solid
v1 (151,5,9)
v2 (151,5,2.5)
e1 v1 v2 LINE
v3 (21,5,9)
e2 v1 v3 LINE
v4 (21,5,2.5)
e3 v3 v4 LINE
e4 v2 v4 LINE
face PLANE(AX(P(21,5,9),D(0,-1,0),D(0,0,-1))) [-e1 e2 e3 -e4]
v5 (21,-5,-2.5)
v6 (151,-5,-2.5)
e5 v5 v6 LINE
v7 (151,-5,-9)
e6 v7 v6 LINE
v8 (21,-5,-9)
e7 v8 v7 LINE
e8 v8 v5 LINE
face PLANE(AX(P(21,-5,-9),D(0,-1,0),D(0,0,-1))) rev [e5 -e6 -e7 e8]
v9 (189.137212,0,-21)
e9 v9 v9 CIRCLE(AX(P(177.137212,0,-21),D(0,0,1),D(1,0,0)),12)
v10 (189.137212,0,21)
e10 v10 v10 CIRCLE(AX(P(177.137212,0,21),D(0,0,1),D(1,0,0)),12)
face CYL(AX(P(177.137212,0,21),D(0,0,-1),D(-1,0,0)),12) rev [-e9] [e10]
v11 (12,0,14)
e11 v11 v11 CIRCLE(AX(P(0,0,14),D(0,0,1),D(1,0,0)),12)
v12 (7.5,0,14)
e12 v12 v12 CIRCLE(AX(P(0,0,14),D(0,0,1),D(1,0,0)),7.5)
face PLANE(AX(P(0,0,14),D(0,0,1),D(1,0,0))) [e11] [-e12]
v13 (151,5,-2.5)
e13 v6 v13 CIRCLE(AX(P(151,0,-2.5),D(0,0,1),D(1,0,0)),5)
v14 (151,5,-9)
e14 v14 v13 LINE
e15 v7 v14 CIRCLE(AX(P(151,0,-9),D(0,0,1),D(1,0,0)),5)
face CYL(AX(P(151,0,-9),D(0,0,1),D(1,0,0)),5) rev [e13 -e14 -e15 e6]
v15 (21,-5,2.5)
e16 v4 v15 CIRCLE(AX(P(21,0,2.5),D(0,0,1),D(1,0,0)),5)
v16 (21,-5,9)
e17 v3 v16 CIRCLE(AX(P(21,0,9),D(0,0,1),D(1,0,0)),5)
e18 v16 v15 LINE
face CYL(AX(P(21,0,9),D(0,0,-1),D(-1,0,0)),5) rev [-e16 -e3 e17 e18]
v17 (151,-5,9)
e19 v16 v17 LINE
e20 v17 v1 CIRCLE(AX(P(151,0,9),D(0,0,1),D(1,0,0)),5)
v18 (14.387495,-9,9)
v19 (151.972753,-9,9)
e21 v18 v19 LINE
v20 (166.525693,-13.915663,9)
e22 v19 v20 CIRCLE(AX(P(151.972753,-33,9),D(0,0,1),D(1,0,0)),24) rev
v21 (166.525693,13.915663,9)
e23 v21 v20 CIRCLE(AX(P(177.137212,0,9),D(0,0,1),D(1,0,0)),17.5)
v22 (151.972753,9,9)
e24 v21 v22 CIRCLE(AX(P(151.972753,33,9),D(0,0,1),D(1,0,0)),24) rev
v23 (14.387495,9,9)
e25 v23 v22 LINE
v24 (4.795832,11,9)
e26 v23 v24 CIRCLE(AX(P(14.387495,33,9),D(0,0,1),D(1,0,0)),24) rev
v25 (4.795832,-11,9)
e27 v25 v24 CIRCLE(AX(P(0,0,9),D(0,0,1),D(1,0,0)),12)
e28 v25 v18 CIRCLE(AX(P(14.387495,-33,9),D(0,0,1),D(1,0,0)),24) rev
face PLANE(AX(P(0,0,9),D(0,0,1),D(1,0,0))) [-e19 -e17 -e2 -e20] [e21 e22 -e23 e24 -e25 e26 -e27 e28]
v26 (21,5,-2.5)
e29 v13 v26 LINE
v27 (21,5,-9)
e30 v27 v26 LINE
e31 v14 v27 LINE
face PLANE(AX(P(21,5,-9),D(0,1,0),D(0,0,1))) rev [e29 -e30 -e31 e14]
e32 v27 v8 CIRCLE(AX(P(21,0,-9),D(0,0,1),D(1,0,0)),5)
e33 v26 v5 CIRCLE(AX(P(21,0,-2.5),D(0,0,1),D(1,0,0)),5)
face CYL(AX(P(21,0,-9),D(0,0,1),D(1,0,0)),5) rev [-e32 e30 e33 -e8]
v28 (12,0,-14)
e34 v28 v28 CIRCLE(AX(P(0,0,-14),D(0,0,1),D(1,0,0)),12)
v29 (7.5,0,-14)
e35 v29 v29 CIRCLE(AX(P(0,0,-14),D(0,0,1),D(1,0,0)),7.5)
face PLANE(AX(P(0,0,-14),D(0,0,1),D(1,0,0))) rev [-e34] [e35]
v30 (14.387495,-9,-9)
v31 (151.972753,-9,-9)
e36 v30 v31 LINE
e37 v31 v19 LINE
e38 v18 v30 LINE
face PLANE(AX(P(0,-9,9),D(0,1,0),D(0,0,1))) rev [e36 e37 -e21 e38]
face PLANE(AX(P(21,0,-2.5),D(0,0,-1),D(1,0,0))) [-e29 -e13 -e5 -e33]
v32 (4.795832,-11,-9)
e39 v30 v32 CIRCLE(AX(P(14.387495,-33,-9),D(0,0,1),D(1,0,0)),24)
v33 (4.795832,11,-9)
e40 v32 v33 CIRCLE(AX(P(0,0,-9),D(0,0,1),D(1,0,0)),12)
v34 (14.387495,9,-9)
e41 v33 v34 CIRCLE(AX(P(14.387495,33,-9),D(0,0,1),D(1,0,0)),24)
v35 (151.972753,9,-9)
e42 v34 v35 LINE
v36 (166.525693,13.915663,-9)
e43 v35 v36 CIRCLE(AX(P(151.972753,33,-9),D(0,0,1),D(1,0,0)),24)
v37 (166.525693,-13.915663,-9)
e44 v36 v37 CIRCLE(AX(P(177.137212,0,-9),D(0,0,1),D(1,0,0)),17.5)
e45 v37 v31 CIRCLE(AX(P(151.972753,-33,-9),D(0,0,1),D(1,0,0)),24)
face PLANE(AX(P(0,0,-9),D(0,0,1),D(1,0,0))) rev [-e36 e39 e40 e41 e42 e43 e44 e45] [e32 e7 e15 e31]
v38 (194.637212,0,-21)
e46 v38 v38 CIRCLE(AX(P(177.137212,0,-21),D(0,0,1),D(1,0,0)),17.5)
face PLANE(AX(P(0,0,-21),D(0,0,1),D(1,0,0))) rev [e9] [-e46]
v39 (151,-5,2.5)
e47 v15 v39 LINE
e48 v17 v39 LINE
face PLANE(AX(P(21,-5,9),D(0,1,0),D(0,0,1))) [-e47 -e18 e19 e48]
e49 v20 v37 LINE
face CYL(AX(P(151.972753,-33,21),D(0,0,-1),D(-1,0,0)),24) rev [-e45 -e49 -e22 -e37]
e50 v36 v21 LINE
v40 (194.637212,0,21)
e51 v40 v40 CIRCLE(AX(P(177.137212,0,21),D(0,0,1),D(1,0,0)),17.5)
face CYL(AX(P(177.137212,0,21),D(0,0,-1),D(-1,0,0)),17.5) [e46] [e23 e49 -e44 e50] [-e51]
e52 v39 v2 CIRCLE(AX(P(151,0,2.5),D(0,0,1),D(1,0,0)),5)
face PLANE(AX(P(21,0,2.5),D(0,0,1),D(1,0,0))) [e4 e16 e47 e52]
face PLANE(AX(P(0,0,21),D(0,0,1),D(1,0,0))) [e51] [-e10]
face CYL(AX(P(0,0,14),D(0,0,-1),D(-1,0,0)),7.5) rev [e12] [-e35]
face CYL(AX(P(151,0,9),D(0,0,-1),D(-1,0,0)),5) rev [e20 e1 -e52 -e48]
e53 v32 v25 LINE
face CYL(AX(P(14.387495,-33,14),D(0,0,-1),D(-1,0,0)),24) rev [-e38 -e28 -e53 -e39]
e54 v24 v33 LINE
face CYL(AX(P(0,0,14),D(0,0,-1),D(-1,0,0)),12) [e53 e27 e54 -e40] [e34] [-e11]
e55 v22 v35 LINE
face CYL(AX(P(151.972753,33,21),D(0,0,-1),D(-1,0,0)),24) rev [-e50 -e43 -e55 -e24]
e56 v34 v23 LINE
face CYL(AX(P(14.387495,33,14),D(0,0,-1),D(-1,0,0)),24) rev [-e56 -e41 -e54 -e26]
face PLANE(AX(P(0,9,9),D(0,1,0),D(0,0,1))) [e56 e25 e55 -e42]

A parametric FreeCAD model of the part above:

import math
import FreeCAD as App
import Part
import Sketcher
Q = App.Units.Quantity


def edges_at(feature, points):
    """Names of the edges that pass closest to the given points."""
    edges = feature.Shape.Edges
    near = lambda p: min(range(len(edges)), key=lambda i: edges[i].distToShape(Part.Vertex(*p))[0])
    return sorted({f"Edge{near(p) + 1}" for p in points})

doc = App.newDocument("Part")
body = doc.addObject("PartDesign::Body", "Body")

# Sketch on XY plane
sketch1 = body.newObject("Sketcher::SketchObject", "Sketch")
sketch1.AttachmentSupport = (doc.getObject("XY_Plane"), [""])
sketch1.MapMode = "FlatFace"
sketch1.addGeometry([
    Part.Circle(App.Vector(0, 0, 0), App.Vector(0, 0, 1), 12),
    Part.Circle(App.Vector(0, 0, 0), App.Vector(0, 0, 1), 8),
], False)
sketch1.addConstraint([
    Sketcher.Constraint("Coincident", 0, 3, -1, 1),
    Sketcher.Constraint("Coincident", 1, 3, -1, 1),
    Sketcher.Constraint("Diameter", 0, Q("24 mm")),
    Sketcher.Constraint("Diameter", 1, Q("15 mm")),
])
pad1 = body.newObject("PartDesign::Pad", "Pad")
pad1.Profile = sketch1
pad1.Length = 28
pad1.Midplane = True
body2 = doc.addObject("PartDesign::Body", "Body001")

# Sketch on XY plane
sketch2 = body2.newObject("Sketcher::SketchObject", "Sketch001")
sketch2.AttachmentSupport = (doc.getObject("XY_Plane001"), [""])
sketch2.MapMode = "FlatFace"
sketch2.addGeometry([
    Part.Circle(App.Vector(177, 0, 0), App.Vector(0, 0, 1), 18),
    Part.Circle(App.Vector(177, 0, 0), App.Vector(0, 0, 1), 12),
], False)
sketch2.addConstraint([
    Sketcher.Constraint("Coincident", 1, 3, 0, 3),
    Sketcher.Constraint("PointOnObject", 0, 3, -1),
    Sketcher.Constraint("Diameter", 0, Q("35 mm")),
    Sketcher.Constraint("Diameter", 1, Q("24 mm")),
    Sketcher.Constraint("DistanceX", -1, 1, 0, 3, Q("177.137212 mm")),
])
pad2 = body2.newObject("PartDesign::Pad", "Pad001")
pad2.Profile = sketch2
pad2.Length = 42
pad2.Midplane = True
body.AllowCompound = True
doc.recompute()

boolean = body.newObject("PartDesign::Boolean", "Boolean")
boolean.Type = "Fuse"
boolean.addObjects([body2])

# Sketch on XY plane
sketch3 = body.newObject("Sketcher::SketchObject", "Sketch002")
sketch3.AttachmentSupport = (doc.getObject("XY_Plane"), [""])
sketch3.MapMode = "FlatFace"
sketch3.addGeometry([
    Part.LineSegment(App.Vector(162, 9, 0), App.Vector(8, 9, 0)),  # 0
    Part.ArcOfCircle(Part.Circle(App.Vector(0, 0, 0), App.Vector(0, 0, 1), 12), math.radians(0), math.radians(49)),  # 1
    Part.ArcOfCircle(Part.Circle(App.Vector(0, 0, 0), App.Vector(0, 0, 1), 12), math.radians(-49), math.radians(0)),  # 2
    Part.LineSegment(App.Vector(8, -9, 0), App.Vector(162, -9, 0)),  # 3
    Part.ArcOfCircle(Part.Circle(App.Vector(177, 0, 0), App.Vector(0, 0, 1), 18), math.radians(149), math.radians(211)),  # 4
], False)
sketch3.addConstraint([
    Sketcher.Constraint("Coincident", 0, 2, 1, 2),
    Sketcher.Constraint("Tangent", 1, 1, 2, 2),
    Sketcher.Constraint("Coincident", 2, 1, 3, 1),
    Sketcher.Constraint("Coincident", 3, 2, 4, 2),
    Sketcher.Constraint("Coincident", 4, 1, 0, 1),
    Sketcher.Constraint("Horizontal", 0),
    Sketcher.Constraint("Horizontal", 3),
    Sketcher.Constraint("Coincident", 1, 3, -1, 1),
    Sketcher.Constraint("Equal", 1, 2),
    Sketcher.Constraint("Symmetric", 3, 2, 4, 1, -1),
    Sketcher.Constraint("PointOnObject", 1, 1, -1),
    Sketcher.Constraint("Radius", 1, Q("12 mm")),
    Sketcher.Constraint("Radius", 4, Q("17.5 mm")),
    Sketcher.Constraint("DistanceY", -1, 1, 0, 2, Q("9 mm")),
    Sketcher.Constraint("DistanceX", 0, 2, 0, 1, Q("154.191627 mm")),
])
pad3 = body.newObject("PartDesign::Pad", "Pad002")
pad3.Profile = sketch3
pad3.Length = 18
pad3.Midplane = True

# Sketch on XY plane
sketch4 = body.newObject("Sketcher::SketchObject", "Sketch003")
sketch4.AttachmentSupport = (doc.getObject("XY_Plane"), [""])
sketch4.MapMode = "FlatFace"
sketch4.AttachmentOffset = App.Placement(App.Vector(0, 0, 2.5), App.Rotation())
sketch4.addGeometry([
    Part.LineSegment(App.Vector(151, 5, 0), App.Vector(21, 5, 0)),
    Part.ArcOfCircle(Part.Circle(App.Vector(21, 0, 0), App.Vector(0, 0, 1), 5), math.radians(90), math.radians(270)),
    Part.LineSegment(App.Vector(21, -5, 0), App.Vector(151, -5, 0)),
    Part.ArcOfCircle(Part.Circle(App.Vector(151, 0, 0), App.Vector(0, 0, 1), 5), math.radians(-90), math.radians(90)),
], False)
sketch4.addConstraint([
    Sketcher.Constraint("Tangent", 0, 2, 1, 1),
    Sketcher.Constraint("Tangent", 1, 2, 2, 1),
    Sketcher.Constraint("Tangent", 2, 2, 3, 1),
    Sketcher.Constraint("Tangent", 3, 2, 0, 1),
    Sketcher.Constraint("Horizontal", 0),
    Sketcher.Constraint("Horizontal", 2),
    Sketcher.Constraint("PointOnObject", 1, 3, -1),
    Sketcher.Constraint("Radius", 1, Q("5 mm")),
    Sketcher.Constraint("DistanceX", 0, 2, 0, 1, Q("130 mm")),
    Sketcher.Constraint("DistanceX", -1, 1, 1, 3, Q("21 mm")),
])
pocket1 = body.newObject("PartDesign::Pocket", "Pocket")
pocket1.Profile = sketch4
pocket1.Length = 6.5
pocket1.Reversed = True
doc.recompute()

mirrored = body.newObject("PartDesign::Mirrored", "Mirrored")
mirrored.Originals = [pocket1]
mirrored.MirrorPlane = (doc.getObject("XY_Plane"), [""])
body.Tip = mirrored
doc.recompute()

fillet = body.newObject("PartDesign::Fillet", "Fillet")
fillet.Base = (mirrored, edges_at(mirrored, [
    (7.937, 9, 0),
    (7.937, -9, 0),
    (162.129, -9, 0),
    (162.129, 9, 0),
]))
fillet.Radius = 24

doc.recompute()
